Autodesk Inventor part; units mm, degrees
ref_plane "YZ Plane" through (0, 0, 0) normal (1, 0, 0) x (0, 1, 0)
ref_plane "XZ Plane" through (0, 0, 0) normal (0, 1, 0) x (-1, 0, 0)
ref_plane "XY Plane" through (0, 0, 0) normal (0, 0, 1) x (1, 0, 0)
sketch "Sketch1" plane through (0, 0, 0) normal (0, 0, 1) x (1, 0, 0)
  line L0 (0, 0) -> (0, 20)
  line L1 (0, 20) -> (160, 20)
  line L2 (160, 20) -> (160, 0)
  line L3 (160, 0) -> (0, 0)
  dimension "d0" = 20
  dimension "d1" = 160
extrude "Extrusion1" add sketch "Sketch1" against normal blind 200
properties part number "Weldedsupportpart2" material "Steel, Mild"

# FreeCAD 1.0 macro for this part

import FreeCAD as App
import Part
import Sketcher
from FreeCAD import Vector
Q = App.Units.Quantity

doc = App.newDocument("Part")
body = doc.addObject("PartDesign::Body", "Body")

# Sketch on XY plane
sketch1 = body.newObject("Sketcher::SketchObject", "Sketch")
sketch1.AttachmentSupport = (doc.getObject("XY_Plane"), [""])
sketch1.MapMode = "FlatFace"
sketch1.addGeometry(Part.LineSegment(Vector(0, 20, 0), Vector(0, 0, 0)), False)
sketch1.addGeometry(Part.LineSegment(Vector(0, 0, 0), Vector(160, 0, 0)), False)
sketch1.addGeometry(Part.LineSegment(Vector(160, 0, 0), Vector(160, 20, 0)), False)
sketch1.addGeometry(Part.LineSegment(Vector(160, 20, 0), Vector(0, 20, 0)), False)
sketch1.addConstraint(Sketcher.Constraint("Coincident", 0, 2, 1, 1))
sketch1.addConstraint(Sketcher.Constraint("Coincident", 1, 2, 2, 1))
sketch1.addConstraint(Sketcher.Constraint("Coincident", 2, 2, 3, 1))
sketch1.addConstraint(Sketcher.Constraint("Coincident", 3, 2, 0, 1))
sketch1.addConstraint(Sketcher.Constraint("Vertical", 0))
sketch1.addConstraint(Sketcher.Constraint("Horizontal", 1))
sketch1.addConstraint(Sketcher.Constraint("Vertical", 2))
sketch1.addConstraint(Sketcher.Constraint("Horizontal", 3))
sketch1.addConstraint(Sketcher.Constraint("Coincident", 0, 2, -1, 1))
sketch1.addConstraint(Sketcher.Constraint("DistanceX", 1, 1, 1, 2, Q("160 mm")))
sketch1.addConstraint(Sketcher.Constraint("DistanceY", 0, 2, 0, 1, Q("20 mm")))
pad1 = body.newObject("PartDesign::Pad", "Pad")
pad1.Profile = sketch1
pad1.Length = 200
pad1.Reversed = True

doc.recompute()
